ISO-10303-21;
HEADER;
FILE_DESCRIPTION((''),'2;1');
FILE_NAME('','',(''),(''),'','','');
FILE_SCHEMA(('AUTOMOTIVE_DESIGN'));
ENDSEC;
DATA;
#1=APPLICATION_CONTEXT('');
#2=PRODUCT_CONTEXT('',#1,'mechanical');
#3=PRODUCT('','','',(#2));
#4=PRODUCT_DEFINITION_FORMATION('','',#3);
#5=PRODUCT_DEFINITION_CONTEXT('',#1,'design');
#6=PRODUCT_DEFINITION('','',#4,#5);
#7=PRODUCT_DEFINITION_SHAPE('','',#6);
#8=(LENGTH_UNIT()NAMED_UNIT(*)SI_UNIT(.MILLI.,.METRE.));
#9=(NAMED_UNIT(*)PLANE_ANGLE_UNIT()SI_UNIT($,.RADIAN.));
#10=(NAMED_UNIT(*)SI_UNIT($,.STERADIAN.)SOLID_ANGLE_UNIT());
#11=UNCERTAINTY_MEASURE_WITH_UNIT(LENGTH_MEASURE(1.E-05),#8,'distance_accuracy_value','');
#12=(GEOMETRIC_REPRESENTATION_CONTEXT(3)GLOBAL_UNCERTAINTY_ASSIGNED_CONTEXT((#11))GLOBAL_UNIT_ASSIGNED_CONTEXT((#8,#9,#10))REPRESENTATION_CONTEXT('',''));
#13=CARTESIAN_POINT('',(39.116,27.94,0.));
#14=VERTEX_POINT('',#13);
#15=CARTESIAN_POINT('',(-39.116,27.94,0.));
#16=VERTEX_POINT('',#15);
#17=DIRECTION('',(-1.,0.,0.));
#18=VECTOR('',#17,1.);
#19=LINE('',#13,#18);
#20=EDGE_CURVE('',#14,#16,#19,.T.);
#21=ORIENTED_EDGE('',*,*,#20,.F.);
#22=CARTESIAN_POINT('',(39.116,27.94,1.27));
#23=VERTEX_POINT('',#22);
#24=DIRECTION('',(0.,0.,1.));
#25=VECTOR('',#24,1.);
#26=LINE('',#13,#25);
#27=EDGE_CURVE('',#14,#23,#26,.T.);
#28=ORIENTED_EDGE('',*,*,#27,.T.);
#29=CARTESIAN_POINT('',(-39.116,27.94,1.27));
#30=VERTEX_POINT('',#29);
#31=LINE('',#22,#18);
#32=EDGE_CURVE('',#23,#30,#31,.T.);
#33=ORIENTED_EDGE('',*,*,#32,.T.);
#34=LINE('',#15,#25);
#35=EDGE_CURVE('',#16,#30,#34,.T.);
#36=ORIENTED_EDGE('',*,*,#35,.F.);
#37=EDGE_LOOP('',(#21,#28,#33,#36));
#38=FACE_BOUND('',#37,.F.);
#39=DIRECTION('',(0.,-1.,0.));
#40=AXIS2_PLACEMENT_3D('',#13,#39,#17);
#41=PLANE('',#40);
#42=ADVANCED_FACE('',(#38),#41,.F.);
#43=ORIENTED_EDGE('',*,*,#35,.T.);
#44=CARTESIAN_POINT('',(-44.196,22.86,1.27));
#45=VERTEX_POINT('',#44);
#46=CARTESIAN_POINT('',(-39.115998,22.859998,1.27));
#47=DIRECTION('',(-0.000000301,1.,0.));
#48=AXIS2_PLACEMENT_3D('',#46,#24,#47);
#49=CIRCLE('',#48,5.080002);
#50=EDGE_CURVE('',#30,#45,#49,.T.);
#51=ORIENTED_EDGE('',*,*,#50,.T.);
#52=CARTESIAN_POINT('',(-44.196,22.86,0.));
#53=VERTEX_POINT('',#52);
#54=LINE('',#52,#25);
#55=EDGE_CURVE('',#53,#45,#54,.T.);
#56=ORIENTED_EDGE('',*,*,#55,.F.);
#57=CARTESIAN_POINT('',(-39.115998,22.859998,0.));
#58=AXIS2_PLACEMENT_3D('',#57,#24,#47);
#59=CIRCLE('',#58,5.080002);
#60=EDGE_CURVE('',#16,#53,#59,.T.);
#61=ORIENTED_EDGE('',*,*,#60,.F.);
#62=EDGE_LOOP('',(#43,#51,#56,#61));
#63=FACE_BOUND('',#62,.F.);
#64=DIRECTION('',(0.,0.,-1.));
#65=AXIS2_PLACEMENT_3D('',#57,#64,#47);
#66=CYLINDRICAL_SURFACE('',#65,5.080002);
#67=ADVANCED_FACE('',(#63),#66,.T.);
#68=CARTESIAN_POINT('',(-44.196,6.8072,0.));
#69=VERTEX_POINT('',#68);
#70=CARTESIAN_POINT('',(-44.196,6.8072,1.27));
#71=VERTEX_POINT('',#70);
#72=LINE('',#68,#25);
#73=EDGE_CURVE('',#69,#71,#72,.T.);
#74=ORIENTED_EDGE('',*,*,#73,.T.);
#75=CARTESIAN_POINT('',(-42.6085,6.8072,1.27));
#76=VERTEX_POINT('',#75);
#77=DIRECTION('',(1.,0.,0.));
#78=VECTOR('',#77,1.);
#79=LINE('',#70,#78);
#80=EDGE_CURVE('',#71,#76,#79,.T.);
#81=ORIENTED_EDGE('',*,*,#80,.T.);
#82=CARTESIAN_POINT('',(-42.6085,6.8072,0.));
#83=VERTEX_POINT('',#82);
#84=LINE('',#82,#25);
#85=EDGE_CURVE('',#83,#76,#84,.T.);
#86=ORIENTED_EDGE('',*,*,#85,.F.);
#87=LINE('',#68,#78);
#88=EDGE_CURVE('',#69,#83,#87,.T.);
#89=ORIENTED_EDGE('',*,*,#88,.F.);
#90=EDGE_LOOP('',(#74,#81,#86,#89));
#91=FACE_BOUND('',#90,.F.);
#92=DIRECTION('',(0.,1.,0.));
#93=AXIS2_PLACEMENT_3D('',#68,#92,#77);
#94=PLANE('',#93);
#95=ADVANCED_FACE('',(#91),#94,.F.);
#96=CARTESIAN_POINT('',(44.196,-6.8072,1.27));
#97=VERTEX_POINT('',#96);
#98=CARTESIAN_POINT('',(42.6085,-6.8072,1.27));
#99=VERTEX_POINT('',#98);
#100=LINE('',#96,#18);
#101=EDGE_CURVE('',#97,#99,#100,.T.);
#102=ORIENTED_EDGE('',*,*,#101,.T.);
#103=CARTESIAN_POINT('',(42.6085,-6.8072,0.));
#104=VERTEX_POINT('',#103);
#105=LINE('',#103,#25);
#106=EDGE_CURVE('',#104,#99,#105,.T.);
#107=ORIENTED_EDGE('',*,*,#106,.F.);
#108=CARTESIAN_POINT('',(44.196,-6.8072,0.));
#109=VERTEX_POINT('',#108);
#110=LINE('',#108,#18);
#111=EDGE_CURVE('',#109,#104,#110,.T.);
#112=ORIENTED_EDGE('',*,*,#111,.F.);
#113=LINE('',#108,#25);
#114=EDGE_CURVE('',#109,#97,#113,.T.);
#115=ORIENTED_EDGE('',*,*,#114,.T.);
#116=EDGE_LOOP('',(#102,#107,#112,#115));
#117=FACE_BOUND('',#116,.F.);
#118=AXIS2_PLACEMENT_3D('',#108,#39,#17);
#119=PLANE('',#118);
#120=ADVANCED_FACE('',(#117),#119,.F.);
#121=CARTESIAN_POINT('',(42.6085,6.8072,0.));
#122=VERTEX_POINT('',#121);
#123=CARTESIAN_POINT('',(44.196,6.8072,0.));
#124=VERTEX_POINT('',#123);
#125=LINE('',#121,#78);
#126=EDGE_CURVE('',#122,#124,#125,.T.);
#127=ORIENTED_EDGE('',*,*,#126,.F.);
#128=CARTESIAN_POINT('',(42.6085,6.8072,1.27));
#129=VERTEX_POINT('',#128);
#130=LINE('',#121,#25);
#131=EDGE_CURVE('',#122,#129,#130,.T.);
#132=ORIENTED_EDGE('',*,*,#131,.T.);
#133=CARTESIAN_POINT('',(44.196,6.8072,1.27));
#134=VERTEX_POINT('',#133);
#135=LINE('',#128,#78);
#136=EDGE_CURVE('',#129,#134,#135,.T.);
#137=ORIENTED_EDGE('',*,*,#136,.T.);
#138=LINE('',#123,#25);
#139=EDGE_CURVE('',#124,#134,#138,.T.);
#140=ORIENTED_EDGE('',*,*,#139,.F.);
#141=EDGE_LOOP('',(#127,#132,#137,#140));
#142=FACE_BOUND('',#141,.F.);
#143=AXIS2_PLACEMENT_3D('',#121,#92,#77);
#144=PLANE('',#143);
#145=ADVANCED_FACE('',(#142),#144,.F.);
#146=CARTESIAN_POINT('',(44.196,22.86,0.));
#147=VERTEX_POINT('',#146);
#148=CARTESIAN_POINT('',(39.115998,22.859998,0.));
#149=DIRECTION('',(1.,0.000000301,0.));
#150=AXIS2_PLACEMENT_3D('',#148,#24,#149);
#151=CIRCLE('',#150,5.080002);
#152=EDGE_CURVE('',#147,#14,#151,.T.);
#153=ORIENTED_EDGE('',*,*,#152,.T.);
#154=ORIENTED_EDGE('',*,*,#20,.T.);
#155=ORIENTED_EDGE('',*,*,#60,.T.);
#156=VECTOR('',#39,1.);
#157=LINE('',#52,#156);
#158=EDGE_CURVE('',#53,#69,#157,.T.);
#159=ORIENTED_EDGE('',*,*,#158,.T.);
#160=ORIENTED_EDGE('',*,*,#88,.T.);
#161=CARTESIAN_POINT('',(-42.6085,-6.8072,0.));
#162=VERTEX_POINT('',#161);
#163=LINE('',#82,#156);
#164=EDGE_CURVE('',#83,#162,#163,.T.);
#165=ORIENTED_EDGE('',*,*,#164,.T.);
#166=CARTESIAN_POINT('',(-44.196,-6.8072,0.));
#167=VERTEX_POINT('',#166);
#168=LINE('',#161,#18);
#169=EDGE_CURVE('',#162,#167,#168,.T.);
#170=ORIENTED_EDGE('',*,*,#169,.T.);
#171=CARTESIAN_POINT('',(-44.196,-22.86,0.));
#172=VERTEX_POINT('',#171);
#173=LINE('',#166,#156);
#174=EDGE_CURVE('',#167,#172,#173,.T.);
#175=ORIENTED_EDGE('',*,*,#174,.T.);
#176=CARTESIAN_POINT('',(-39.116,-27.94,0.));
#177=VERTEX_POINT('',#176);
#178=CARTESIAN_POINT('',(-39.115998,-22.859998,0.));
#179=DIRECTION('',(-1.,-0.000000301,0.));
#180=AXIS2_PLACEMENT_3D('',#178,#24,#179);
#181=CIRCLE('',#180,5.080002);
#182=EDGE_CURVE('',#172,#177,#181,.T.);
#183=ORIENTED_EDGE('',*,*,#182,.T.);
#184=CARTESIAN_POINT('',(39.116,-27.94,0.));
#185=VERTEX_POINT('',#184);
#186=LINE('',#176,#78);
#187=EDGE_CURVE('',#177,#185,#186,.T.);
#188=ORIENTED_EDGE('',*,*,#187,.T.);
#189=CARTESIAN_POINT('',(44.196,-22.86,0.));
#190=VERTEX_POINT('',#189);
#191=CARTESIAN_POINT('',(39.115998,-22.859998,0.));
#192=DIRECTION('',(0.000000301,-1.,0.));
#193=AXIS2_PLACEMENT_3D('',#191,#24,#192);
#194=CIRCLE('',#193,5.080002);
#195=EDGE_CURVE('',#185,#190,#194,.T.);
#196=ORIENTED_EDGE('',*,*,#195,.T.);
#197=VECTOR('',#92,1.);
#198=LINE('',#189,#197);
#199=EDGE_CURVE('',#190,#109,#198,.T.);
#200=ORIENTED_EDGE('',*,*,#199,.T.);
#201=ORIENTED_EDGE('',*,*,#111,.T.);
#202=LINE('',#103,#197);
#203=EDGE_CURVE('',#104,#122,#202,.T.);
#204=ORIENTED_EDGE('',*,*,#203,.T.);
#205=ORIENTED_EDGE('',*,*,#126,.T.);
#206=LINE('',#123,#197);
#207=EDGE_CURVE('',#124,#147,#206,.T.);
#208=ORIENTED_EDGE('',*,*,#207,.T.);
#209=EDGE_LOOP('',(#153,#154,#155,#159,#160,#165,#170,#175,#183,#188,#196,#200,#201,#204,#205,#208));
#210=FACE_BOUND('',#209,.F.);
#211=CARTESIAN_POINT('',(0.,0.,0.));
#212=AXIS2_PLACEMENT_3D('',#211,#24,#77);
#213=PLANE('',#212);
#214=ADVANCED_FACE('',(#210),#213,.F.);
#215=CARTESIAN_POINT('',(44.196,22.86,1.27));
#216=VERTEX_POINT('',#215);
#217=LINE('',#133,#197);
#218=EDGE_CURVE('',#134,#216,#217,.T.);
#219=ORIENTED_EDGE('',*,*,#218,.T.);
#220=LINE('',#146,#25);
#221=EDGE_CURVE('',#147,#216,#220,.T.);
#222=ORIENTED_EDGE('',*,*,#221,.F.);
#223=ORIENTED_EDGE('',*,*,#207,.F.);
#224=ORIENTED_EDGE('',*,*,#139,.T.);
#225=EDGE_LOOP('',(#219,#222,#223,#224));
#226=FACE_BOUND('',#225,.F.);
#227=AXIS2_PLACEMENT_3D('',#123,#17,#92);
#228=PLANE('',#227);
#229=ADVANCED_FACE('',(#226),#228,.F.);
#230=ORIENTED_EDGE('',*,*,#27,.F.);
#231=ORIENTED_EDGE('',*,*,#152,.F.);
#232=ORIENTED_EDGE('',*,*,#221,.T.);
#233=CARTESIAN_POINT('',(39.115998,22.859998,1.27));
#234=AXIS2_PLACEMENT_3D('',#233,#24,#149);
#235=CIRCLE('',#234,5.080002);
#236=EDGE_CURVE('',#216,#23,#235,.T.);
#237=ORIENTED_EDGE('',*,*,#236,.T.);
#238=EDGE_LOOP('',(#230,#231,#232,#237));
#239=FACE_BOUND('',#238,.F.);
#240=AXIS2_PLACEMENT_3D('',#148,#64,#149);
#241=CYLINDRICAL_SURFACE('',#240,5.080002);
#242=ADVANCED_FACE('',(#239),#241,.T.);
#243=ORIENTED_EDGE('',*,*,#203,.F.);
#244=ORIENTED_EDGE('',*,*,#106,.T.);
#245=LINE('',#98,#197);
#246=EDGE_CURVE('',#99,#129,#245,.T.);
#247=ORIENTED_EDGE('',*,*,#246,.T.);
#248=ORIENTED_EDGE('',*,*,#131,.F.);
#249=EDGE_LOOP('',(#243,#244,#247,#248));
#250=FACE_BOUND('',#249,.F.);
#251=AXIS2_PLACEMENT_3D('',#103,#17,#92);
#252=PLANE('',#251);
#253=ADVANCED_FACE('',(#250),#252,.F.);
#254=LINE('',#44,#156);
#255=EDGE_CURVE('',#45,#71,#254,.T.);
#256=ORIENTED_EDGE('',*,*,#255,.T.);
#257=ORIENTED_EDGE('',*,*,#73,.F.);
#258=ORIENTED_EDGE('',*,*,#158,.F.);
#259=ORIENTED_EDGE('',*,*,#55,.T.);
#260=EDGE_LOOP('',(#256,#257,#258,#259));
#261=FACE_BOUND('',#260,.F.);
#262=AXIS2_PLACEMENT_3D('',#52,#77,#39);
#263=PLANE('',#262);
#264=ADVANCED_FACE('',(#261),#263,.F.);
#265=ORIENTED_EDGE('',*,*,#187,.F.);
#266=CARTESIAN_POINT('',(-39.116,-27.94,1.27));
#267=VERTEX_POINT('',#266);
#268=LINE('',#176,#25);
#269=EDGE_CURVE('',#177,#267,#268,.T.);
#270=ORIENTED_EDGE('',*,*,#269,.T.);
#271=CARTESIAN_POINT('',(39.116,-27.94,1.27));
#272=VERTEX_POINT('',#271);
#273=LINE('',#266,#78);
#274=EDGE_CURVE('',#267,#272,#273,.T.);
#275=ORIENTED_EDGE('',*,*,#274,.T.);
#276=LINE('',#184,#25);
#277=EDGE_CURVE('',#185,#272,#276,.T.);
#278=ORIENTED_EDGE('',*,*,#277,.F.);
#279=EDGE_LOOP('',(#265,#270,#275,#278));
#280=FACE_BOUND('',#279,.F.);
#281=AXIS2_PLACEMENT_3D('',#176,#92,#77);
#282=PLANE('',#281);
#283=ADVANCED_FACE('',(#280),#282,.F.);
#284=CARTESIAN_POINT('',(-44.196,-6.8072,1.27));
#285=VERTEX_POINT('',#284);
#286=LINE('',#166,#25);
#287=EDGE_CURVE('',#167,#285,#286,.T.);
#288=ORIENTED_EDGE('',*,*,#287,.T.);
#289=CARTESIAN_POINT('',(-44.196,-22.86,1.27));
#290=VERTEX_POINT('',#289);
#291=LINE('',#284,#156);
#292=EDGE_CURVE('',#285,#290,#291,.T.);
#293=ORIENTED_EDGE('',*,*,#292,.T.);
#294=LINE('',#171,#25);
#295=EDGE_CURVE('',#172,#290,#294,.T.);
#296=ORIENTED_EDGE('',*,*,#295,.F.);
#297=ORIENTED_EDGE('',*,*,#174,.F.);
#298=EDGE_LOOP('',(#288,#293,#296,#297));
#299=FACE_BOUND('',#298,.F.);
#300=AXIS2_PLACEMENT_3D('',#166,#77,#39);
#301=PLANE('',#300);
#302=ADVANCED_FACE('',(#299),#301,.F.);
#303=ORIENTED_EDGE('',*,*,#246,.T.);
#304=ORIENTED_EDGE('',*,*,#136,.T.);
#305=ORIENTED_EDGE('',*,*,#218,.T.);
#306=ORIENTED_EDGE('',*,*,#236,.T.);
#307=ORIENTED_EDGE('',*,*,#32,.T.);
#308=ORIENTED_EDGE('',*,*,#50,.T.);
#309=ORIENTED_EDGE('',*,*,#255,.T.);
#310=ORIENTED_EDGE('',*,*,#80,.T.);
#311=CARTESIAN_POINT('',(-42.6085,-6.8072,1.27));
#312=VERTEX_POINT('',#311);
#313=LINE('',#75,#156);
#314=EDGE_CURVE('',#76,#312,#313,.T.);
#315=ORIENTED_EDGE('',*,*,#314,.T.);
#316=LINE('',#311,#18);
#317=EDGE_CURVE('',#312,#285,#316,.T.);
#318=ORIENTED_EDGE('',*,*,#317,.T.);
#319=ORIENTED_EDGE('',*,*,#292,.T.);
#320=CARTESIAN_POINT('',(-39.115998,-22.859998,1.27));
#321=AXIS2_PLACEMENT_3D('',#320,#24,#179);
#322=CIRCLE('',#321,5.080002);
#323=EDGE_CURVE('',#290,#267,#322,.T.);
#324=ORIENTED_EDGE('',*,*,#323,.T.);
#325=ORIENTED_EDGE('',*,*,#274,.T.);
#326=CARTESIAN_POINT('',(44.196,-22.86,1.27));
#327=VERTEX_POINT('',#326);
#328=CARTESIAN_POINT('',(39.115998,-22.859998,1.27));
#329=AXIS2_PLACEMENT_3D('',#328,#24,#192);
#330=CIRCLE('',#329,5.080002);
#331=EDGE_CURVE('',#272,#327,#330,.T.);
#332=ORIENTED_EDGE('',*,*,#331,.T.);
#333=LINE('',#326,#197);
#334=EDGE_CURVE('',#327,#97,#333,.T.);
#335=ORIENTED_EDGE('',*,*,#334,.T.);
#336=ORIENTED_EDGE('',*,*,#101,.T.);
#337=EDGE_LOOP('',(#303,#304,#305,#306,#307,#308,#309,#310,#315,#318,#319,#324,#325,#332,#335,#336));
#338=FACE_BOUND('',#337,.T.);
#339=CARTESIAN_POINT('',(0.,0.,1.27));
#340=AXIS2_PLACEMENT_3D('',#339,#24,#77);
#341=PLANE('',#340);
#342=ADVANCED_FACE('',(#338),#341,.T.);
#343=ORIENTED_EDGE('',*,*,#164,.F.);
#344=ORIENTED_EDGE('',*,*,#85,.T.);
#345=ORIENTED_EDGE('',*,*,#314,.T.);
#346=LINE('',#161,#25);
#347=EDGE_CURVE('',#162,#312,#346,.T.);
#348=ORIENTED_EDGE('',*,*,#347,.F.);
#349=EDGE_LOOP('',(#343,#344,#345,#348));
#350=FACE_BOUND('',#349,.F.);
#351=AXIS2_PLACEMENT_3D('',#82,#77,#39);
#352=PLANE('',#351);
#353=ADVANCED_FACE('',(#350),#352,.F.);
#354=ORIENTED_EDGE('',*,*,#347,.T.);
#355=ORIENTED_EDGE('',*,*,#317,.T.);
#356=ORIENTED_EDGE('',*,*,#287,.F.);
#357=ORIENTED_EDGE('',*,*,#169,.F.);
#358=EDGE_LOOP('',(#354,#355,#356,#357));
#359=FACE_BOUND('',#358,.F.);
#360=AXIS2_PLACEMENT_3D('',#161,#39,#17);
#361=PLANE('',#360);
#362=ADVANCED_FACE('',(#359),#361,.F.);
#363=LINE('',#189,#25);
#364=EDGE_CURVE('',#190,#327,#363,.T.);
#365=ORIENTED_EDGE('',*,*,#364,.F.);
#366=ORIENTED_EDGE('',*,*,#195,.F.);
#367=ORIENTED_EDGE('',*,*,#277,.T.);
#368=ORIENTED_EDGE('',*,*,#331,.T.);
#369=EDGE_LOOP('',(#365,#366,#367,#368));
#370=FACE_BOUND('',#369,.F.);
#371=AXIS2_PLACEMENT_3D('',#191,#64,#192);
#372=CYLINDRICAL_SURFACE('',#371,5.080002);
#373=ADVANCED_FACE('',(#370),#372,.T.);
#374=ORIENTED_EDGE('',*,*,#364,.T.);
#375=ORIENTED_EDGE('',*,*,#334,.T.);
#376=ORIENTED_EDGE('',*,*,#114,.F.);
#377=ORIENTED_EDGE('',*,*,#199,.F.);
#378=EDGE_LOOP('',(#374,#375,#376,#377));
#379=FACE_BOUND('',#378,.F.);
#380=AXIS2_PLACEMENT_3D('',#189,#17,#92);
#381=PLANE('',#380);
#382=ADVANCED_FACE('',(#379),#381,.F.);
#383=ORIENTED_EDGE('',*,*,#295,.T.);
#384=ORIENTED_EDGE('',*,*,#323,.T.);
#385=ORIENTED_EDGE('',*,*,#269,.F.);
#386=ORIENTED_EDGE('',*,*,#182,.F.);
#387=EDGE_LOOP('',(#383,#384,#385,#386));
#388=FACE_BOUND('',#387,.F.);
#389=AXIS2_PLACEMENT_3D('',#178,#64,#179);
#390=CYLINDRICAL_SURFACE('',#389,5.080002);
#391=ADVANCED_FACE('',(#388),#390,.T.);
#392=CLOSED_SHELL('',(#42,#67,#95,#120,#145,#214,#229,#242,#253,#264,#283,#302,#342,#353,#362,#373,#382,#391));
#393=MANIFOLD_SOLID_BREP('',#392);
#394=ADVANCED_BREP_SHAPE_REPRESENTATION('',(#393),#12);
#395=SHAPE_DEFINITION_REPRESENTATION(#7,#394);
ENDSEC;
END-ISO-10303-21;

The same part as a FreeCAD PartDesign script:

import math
import FreeCAD as App
import Part
import Sketcher

V = App.Vector
Q = App.Units.Quantity

doc = App.newDocument("Part")
body = doc.addObject("PartDesign::Body", "Body")

# Sketch on XY plane
sketch1 = body.newObject("Sketcher::SketchObject", "Sketch")
sketch1.AttachmentSupport = (doc.getObject("XY_Plane"), [""])
sketch1.MapMode = "FlatFace"
sketch1.addGeometry(Part.ArcOfCircle(Part.Circle(V(39.1, 22.9, 0), V(0, 0, 1), 5.1), math.radians(0), math.radians(90)), False)
sketch1.addGeometry(Part.LineSegment(V(39.1, 27.9, 0), V(-39.1, 27.9, 0)), False)
sketch1.addGeometry(Part.ArcOfCircle(Part.Circle(V(-39.1, 22.9, 0), V(0, 0, 1), 5.1), math.radians(90), math.radians(180)), False)
sketch1.addGeometry(Part.LineSegment(V(-44.2, 22.9, 0), V(-44.2, 6.8, 0)), False)
sketch1.addGeometry(Part.LineSegment(V(-44.2, 6.8, 0), V(-42.6, 6.8, 0)), False)
sketch1.addGeometry(Part.LineSegment(V(-42.6, 6.8, 0), V(-42.6, -6.8, 0)), False)
sketch1.addGeometry(Part.LineSegment(V(-42.6, -6.8, 0), V(-44.2, -6.8, 0)), False)
sketch1.addGeometry(Part.LineSegment(V(-44.2, -6.8, 0), V(-44.2, -22.9, 0)), False)
sketch1.addGeometry(Part.ArcOfCircle(Part.Circle(V(-39.1, -22.9, 0), V(0, 0, 1), 5.1), math.radians(-180), math.radians(-90)), False)
sketch1.addGeometry(Part.LineSegment(V(-39.1, -27.9, 0), V(39.1, -27.9, 0)), False)
sketch1.addGeometry(Part.ArcOfCircle(Part.Circle(V(39.1, -22.9, 0), V(0, 0, 1), 5.1), math.radians(-90), math.radians(0)), False)
sketch1.addGeometry(Part.LineSegment(V(44.2, -22.9, 0), V(44.2, -6.8, 0)), False)
sketch1.addGeometry(Part.LineSegment(V(44.2, -6.8, 0), V(42.6, -6.8, 0)), False)
sketch1.addGeometry(Part.LineSegment(V(42.6, -6.8, 0), V(42.6, 6.8, 0)), False)
sketch1.addGeometry(Part.LineSegment(V(42.6, 6.8, 0), V(44.2, 6.8, 0)), False)
sketch1.addGeometry(Part.LineSegment(V(44.2, 6.8, 0), V(44.2, 22.9, 0)), False)
sketch1.addConstraint(Sketcher.Constraint("Tangent", 0, 2, 1, 1))
sketch1.addConstraint(Sketcher.Constraint("Tangent", 1, 2, 2, 1))
sketch1.addConstraint(Sketcher.Constraint("Tangent", 2, 2, 3, 1))
sketch1.addConstraint(Sketcher.Constraint("Coincident", 3, 2, 4, 1))
sketch1.addConstraint(Sketcher.Constraint("Coincident", 4, 2, 5, 1))
sketch1.addConstraint(Sketcher.Constraint("Coincident", 5, 2, 6, 1))
sketch1.addConstraint(Sketcher.Constraint("Coincident", 6, 2, 7, 1))
sketch1.addConstraint(Sketcher.Constraint("Tangent", 7, 2, 8, 1))
sketch1.addConstraint(Sketcher.Constraint("Tangent", 8, 2, 9, 1))
sketch1.addConstraint(Sketcher.Constraint("Tangent", 9, 2, 10, 1))
sketch1.addConstraint(Sketcher.Constraint("Tangent", 10, 2, 11, 1))
sketch1.addConstraint(Sketcher.Constraint("Coincident", 11, 2, 12, 1))
sketch1.addConstraint(Sketcher.Constraint("Coincident", 12, 2, 13, 1))
sketch1.addConstraint(Sketcher.Constraint("Coincident", 13, 2, 14, 1))
sketch1.addConstraint(Sketcher.Constraint("Coincident", 14, 2, 15, 1))
sketch1.addConstraint(Sketcher.Constraint("Tangent", 15, 2, 0, 1))
sketch1.addConstraint(Sketcher.Constraint("Horizontal", 1))
sketch1.addConstraint(Sketcher.Constraint("Vertical", 3))
sketch1.addConstraint(Sketcher.Constraint("Horizontal", 4))
sketch1.addConstraint(Sketcher.Constraint("Vertical", 5))
sketch1.addConstraint(Sketcher.Constraint("Horizontal", 6))
sketch1.addConstraint(Sketcher.Constraint("Vertical", 7))
sketch1.addConstraint(Sketcher.Constraint("Horizontal", 9))
sketch1.addConstraint(Sketcher.Constraint("Vertical", 11))
sketch1.addConstraint(Sketcher.Constraint("Horizontal", 12))
sketch1.addConstraint(Sketcher.Constraint("Vertical", 13))
sketch1.addConstraint(Sketcher.Constraint("Horizontal", 14))
sketch1.addConstraint(Sketcher.Constraint("Vertical", 15))
sketch1.addConstraint(Sketcher.Constraint("Equal", 0, 2))
sketch1.addConstraint(Sketcher.Constraint("Equal", 2, 8))
sketch1.addConstraint(Sketcher.Constraint("Equal", 8, 10))
sketch1.addConstraint(Sketcher.Constraint("Symmetric", 0, 3, 8, 3, -1, 1))
sketch1.addConstraint(Sketcher.Constraint("Symmetric", 3, 2, 11, 2, -1, 1))
sketch1.addConstraint(Sketcher.Constraint("Symmetric", 5, 2, 13, 2, -1, 1))
sketch1.addConstraint(Sketcher.Constraint("Symmetric", 6, 2, 11, 2, -2))
sketch1.addConstraint(Sketcher.Constraint("Radius", 0, Q("0.2000001 in")))
sketch1.addConstraint(Sketcher.Constraint("DistanceY", 10, 3, 0, 2, Q("1.9999999 in")))
sketch1.addConstraint(Sketcher.Constraint("DistanceX", 1, 2, 1, 1, Q("3.08 in")))
sketch1.addConstraint(Sketcher.Constraint("DistanceX", 4, 1, 4, 2, Q("0.0625 in")))
sketch1.addConstraint(Sketcher.Constraint("DistanceY", 3, 2, 3, 1, Q("0.632 in")))
pad1 = body.newObject("PartDesign::Pad", "Pad")
pad1.Profile = sketch1
pad1.Length = Q("0.05 in")

doc.recompute()
